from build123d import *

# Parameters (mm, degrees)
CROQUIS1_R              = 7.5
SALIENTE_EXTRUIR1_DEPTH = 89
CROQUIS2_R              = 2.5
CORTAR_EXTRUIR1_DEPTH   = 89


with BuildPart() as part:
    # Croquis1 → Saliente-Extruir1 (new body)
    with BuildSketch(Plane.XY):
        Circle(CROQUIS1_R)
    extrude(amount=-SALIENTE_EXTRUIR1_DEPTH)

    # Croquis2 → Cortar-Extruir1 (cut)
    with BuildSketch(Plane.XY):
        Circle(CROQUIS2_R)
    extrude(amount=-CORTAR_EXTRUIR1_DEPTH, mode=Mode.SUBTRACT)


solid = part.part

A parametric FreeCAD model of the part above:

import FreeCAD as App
import Part
import Sketcher

V = App.Vector

doc = App.newDocument("Part")
body = doc.addObject("PartDesign::Body", "Body")

# Sketch on XY plane
sketch1 = doc.addObject("Sketcher::SketchObject", "Sketch")
body.addObject(sketch1)
sketch1.AttachmentSupport = (doc.XY_Plane, [""])
sketch1.MapMode = "FlatFace"
sketch1.addGeometry(Part.Circle(V(0, 0, 0), V(0, 0, 1), 7.5), False)
sketch1.addConstraint(Sketcher.Constraint("Coincident", 0, 3, -1, 1))
sketch1.addConstraint(Sketcher.Constraint("Diameter", 0, 15.0))
pad1 = doc.addObject("PartDesign::Pad", "Pad")
body.addObject(pad1)
pad1.Profile = sketch1
pad1.Length = 89
pad1.Reversed = True

# Sketch on XY plane
sketch2 = doc.addObject("Sketcher::SketchObject", "Sketch001")
body.addObject(sketch2)
sketch2.AttachmentSupport = (doc.XY_Plane, [""])
sketch2.MapMode = "FlatFace"
sketch2.addGeometry(Part.Circle(V(0, 0, 0), V(0, 0, 1), 2.5), False)
sketch2.addConstraint(Sketcher.Constraint("Coincident", 0, 3, -1, 1))
sketch2.addConstraint(Sketcher.Constraint("Diameter", 0, 5.0))
pocket1 = doc.addObject("PartDesign::Pocket", "Pocket")
body.addObject(pocket1)
pocket1.Profile = sketch2
pocket1.Length = 89

doc.recompute()
